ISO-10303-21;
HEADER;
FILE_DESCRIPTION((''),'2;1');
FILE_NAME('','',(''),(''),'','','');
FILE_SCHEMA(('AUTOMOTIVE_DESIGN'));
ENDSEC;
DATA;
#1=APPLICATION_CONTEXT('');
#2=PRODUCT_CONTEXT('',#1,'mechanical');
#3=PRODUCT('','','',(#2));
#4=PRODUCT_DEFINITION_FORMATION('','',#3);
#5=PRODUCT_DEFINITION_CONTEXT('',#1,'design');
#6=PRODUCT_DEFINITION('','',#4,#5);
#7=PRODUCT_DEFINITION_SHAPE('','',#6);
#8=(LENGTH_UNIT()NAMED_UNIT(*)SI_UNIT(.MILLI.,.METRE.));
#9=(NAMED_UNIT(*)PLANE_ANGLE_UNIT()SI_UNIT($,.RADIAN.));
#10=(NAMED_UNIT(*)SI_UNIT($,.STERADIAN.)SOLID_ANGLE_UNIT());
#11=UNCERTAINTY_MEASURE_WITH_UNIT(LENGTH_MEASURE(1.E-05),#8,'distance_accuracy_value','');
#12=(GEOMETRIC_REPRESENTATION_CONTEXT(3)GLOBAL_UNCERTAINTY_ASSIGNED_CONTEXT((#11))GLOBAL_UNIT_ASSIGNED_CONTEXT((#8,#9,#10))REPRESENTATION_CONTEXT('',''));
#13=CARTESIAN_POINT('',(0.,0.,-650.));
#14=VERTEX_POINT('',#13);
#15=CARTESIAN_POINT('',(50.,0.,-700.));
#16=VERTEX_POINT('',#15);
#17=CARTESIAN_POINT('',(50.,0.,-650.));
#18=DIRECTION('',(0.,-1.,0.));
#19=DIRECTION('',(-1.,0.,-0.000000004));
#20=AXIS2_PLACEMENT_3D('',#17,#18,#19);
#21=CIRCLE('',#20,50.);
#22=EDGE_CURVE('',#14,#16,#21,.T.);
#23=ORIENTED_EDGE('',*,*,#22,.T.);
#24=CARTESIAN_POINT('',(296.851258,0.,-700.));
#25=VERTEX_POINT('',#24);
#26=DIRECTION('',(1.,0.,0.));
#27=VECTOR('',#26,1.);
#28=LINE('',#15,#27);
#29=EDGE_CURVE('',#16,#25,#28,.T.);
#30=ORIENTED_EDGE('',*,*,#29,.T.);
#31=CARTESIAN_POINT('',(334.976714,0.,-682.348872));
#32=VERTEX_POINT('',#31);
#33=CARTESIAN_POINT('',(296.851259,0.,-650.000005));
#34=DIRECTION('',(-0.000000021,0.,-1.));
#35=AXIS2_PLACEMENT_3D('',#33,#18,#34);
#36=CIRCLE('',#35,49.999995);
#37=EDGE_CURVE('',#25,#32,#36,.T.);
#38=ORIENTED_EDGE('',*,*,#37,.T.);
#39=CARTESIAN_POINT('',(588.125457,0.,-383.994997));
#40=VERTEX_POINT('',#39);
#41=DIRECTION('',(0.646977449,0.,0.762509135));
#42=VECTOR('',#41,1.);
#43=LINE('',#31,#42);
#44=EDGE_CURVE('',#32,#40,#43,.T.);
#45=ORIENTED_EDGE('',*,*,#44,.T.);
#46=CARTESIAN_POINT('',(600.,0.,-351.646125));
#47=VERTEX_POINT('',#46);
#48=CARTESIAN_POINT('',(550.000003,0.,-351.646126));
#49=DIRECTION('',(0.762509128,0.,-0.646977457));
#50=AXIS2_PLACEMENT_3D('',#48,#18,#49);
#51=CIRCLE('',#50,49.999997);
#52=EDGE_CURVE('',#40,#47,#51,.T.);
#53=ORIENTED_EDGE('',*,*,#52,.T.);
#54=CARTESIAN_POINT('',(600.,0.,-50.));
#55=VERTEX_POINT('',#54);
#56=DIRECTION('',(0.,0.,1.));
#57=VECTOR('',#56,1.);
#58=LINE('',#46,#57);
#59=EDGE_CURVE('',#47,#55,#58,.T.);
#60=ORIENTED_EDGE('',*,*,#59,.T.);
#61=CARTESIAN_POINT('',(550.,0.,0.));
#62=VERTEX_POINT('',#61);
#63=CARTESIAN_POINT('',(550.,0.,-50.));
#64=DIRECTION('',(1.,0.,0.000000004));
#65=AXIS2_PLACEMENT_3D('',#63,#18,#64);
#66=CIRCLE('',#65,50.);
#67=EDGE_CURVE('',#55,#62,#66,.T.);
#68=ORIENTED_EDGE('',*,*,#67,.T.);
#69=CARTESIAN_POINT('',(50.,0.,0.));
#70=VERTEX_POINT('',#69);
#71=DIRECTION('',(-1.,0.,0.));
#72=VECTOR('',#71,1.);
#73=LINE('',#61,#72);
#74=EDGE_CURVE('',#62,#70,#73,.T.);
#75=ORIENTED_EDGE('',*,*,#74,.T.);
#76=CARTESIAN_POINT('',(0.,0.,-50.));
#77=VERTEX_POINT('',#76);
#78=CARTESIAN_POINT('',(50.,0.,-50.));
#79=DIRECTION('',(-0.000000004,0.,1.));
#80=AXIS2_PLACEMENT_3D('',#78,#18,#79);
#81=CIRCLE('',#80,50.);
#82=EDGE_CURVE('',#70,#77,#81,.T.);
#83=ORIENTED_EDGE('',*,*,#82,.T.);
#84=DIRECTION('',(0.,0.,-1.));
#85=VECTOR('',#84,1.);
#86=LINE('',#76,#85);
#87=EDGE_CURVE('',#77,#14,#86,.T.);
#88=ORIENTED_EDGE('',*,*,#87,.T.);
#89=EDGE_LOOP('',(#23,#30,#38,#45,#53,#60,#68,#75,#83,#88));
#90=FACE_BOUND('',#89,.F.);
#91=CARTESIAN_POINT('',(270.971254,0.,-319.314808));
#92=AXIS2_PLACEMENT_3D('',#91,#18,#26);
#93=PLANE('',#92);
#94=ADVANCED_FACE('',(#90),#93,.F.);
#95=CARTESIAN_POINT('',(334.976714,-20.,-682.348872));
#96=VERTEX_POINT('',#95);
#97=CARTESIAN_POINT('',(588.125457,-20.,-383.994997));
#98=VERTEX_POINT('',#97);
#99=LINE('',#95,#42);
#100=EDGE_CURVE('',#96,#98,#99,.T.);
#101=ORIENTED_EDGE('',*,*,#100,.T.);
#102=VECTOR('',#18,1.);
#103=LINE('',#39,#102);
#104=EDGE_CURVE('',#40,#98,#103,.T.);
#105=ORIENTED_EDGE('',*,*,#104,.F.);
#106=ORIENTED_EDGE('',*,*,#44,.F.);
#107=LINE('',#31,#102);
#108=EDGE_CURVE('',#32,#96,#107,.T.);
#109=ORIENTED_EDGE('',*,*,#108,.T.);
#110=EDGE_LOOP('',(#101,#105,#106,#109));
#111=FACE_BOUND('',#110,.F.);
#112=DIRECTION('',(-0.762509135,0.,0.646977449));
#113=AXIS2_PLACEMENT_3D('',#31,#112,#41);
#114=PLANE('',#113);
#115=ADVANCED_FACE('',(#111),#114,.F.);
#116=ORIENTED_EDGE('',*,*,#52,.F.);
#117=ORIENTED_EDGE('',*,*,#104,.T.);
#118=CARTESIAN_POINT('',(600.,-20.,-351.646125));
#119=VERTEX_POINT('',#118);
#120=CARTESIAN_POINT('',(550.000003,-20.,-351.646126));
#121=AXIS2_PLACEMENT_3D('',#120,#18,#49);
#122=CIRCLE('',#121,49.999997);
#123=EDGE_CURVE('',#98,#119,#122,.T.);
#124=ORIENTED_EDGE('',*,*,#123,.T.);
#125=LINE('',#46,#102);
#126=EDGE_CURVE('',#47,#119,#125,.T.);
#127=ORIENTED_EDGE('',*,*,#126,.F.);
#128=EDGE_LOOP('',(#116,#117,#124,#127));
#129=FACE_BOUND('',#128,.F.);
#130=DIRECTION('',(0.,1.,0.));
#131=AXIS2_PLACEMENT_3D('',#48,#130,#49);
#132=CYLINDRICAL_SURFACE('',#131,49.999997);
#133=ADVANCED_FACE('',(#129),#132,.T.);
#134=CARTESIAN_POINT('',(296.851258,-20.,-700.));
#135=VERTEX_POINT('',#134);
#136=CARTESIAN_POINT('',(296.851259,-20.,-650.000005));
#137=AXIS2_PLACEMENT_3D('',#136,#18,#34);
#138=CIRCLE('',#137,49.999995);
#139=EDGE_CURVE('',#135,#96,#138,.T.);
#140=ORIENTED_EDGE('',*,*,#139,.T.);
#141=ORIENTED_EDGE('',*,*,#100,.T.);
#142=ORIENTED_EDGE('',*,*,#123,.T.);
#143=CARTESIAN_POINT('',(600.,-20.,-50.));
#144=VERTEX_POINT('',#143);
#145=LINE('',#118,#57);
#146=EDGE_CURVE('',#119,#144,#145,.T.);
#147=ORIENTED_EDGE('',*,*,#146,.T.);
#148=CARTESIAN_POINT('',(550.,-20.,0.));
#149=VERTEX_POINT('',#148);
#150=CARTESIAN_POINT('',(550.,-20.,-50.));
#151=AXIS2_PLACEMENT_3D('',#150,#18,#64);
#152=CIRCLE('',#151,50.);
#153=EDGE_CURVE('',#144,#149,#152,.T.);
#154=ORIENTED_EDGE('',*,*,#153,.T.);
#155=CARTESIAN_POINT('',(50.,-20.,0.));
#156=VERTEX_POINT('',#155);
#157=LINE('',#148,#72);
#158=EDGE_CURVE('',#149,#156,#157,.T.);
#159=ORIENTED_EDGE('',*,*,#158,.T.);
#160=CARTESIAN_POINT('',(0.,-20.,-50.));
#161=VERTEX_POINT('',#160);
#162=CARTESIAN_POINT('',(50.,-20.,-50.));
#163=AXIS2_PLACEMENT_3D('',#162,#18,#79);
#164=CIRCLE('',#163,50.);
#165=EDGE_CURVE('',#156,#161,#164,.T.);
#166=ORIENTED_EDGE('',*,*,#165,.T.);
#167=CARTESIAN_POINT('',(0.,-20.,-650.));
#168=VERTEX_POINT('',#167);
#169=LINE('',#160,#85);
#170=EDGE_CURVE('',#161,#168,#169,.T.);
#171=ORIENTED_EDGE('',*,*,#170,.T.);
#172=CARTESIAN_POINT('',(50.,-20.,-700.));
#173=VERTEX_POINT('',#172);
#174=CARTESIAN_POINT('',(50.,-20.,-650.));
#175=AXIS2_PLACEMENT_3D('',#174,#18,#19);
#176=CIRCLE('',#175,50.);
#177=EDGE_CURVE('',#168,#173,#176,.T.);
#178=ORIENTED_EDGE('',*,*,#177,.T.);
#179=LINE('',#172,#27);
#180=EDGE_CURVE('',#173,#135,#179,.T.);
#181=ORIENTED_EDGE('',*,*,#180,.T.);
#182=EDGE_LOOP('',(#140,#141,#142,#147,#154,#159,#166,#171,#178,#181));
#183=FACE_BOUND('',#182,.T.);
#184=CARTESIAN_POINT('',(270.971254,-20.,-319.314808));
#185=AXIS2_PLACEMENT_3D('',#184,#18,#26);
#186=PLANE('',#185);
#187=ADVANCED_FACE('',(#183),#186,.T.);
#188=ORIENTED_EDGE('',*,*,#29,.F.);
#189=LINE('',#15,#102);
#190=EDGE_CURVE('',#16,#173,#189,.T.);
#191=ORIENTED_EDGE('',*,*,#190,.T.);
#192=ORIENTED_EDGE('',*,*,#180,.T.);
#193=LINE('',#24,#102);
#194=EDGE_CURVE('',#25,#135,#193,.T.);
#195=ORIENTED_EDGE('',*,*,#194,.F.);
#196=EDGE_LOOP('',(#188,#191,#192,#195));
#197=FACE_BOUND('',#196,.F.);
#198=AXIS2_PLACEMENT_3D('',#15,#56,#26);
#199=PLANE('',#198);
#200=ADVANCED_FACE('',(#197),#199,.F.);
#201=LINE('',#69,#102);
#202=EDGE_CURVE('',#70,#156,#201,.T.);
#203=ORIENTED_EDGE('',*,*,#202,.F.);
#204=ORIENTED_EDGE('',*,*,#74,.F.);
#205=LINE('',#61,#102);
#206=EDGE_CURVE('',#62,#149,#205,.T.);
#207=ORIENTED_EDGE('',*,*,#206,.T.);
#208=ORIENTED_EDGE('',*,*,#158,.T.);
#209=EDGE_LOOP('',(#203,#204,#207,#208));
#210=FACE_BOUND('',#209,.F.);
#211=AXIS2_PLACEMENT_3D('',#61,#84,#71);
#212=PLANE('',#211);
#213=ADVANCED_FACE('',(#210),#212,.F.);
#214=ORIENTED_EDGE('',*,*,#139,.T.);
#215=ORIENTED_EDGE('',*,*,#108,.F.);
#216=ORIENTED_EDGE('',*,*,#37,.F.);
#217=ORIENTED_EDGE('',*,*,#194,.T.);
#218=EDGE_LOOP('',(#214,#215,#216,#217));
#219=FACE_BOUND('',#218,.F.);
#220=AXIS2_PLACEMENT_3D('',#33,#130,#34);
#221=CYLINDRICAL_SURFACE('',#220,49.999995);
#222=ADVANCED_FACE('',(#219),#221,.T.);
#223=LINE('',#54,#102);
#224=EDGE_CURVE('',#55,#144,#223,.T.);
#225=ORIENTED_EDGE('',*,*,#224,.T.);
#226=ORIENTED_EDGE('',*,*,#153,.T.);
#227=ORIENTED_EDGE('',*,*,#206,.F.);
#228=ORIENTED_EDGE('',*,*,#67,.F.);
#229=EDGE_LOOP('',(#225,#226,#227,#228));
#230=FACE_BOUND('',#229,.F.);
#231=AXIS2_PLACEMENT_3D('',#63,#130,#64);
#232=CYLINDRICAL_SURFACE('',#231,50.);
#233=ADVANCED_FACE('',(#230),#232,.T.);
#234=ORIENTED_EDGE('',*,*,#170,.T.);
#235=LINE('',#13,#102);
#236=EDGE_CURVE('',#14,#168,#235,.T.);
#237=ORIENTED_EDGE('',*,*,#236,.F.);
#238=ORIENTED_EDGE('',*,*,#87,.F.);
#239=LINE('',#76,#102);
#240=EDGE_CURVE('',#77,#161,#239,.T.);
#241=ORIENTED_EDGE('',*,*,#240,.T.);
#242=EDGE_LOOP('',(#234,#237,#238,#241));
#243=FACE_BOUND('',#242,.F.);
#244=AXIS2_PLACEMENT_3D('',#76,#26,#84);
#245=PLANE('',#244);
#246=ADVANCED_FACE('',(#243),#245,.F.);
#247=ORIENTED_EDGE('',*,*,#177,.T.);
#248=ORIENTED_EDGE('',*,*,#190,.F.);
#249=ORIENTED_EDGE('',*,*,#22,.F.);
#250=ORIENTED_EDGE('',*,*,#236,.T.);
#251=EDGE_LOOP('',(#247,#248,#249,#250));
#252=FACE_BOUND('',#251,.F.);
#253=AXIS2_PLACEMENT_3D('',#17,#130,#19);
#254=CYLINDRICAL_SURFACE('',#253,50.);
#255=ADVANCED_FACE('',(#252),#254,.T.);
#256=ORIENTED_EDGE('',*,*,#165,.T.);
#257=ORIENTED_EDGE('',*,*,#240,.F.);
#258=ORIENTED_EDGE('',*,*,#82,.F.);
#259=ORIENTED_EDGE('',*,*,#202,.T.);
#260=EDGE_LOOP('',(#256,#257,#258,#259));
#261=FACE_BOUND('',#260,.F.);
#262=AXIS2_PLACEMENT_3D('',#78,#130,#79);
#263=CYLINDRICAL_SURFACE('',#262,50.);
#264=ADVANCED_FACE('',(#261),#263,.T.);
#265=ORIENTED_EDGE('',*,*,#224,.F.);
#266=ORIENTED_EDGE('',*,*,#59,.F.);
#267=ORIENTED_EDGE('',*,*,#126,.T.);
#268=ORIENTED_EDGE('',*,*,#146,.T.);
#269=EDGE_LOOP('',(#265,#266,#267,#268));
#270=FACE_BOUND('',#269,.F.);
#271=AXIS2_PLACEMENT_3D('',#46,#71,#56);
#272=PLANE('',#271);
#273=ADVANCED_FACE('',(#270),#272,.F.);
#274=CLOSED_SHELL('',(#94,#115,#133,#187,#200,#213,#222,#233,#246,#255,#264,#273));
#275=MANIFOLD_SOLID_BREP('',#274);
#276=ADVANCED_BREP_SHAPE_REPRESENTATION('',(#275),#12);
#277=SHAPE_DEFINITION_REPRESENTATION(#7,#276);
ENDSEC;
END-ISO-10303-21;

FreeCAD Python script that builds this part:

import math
import FreeCAD as App
import Part
import Sketcher

V = App.Vector

doc = App.newDocument("Part")
body = doc.addObject("PartDesign::Body", "Body")

sketch1 = body.newObject("Sketcher::SketchObject", "Sketch")
sketch1.AttachmentSupport = (doc.getObject("XZ_Plane"), [""])
sketch1.MapMode = "FlatFace"
sketch1.addGeometry(Part.LineSegment(V(550, 0, 0), V(50, 0, 0)), False)
sketch1.addGeometry(Part.ArcOfCircle(Part.Circle(V(50, -50, 0), V(0, 0, 1), 50), math.radians(90), math.radians(180)), False)
sketch1.addGeometry(Part.LineSegment(V(0, -50, 0), V(0, -650, 0)), False)
sketch1.addGeometry(Part.ArcOfCircle(Part.Circle(V(50, -650, 0), V(0, 0, 1), 50), math.radians(-180), math.radians(-90)), False)
sketch1.addGeometry(Part.LineSegment(V(50, -700, 0), V(296.851258, -700, 0)), False)
sketch1.addGeometry(Part.ArcOfCircle(Part.Circle(V(296.851259, -650.000005, 0), V(0, 0, 1), 49.999995), math.radians(-90.000001), math.radians(-40.314097)), False)
sketch1.addGeometry(Part.LineSegment(V(334.976714, -682.348872, 0), V(588.125457, -383.994997, 0)), False)
sketch1.addGeometry(Part.ArcOfCircle(Part.Circle(V(550.000003, -351.646126, 0), V(0, 0, 1), 49.999997), math.radians(-40.314101), math.radians(0.000001)), False)
sketch1.addGeometry(Part.LineSegment(V(600, -351.646125, 0), V(600, -50, 0)), False)
sketch1.addGeometry(Part.ArcOfCircle(Part.Circle(V(550, -50, 0), V(0, 0, 1), 50), math.radians(0), math.radians(90)), False)
sketch1.addConstraint(Sketcher.Constraint("Tangent", 0, 2, 1, 1))
sketch1.addConstraint(Sketcher.Constraint("Tangent", 1, 2, 2, 1))
sketch1.addConstraint(Sketcher.Constraint("Tangent", 2, 2, 3, 1))
sketch1.addConstraint(Sketcher.Constraint("Tangent", 3, 2, 4, 1))
sketch1.addConstraint(Sketcher.Constraint("Tangent", 4, 2, 5, 1))
sketch1.addConstraint(Sketcher.Constraint("Tangent", 5, 2, 6, 1))
sketch1.addConstraint(Sketcher.Constraint("Tangent", 6, 2, 7, 1))
sketch1.addConstraint(Sketcher.Constraint("Tangent", 7, 2, 8, 1))
sketch1.addConstraint(Sketcher.Constraint("Tangent", 8, 2, 9, 1))
sketch1.addConstraint(Sketcher.Constraint("Tangent", 9, 2, 0, 1))
sketch1.addConstraint(Sketcher.Constraint("Horizontal", 0))
sketch1.addConstraint(Sketcher.Constraint("Vertical", 2))
sketch1.addConstraint(Sketcher.Constraint("Horizontal", 4))
sketch1.addConstraint(Sketcher.Constraint("Vertical", 8))
sketch1.addConstraint(Sketcher.Constraint("Equal", 1, 3))
sketch1.addConstraint(Sketcher.Constraint("Equal", 3, 9))
sketch1.addConstraint(Sketcher.Constraint("PointOnObject", 0, 2, -1))
sketch1.addConstraint(Sketcher.Constraint("PointOnObject", 1, 2, -2))
sketch1.addConstraint(Sketcher.Constraint("Radius", 1, 50.0))
sketch1.addConstraint(Sketcher.Constraint("DistanceX", 0, 2, 0, 1, 500.0))
sketch1.addConstraint(Sketcher.Constraint("DistanceY", 2, 2, 2, 1, 600.0))
sketch1.addConstraint(Sketcher.Constraint("Radius", 5, 49.999995))
sketch1.addConstraint(Sketcher.Constraint("Radius", 7, 49.999997))
sketch1.addConstraint(Sketcher.Constraint("DistanceX", 4, 2, 6, 2, 291.274199))
sketch1.addConstraint(Sketcher.Constraint("DistanceX", 4, 1, 4, 2, 246.851258))
pad1 = body.newObject("PartDesign::Pad", "Pad")
pad1.Profile = sketch1
pad1.Length = 20

doc.recompute()
